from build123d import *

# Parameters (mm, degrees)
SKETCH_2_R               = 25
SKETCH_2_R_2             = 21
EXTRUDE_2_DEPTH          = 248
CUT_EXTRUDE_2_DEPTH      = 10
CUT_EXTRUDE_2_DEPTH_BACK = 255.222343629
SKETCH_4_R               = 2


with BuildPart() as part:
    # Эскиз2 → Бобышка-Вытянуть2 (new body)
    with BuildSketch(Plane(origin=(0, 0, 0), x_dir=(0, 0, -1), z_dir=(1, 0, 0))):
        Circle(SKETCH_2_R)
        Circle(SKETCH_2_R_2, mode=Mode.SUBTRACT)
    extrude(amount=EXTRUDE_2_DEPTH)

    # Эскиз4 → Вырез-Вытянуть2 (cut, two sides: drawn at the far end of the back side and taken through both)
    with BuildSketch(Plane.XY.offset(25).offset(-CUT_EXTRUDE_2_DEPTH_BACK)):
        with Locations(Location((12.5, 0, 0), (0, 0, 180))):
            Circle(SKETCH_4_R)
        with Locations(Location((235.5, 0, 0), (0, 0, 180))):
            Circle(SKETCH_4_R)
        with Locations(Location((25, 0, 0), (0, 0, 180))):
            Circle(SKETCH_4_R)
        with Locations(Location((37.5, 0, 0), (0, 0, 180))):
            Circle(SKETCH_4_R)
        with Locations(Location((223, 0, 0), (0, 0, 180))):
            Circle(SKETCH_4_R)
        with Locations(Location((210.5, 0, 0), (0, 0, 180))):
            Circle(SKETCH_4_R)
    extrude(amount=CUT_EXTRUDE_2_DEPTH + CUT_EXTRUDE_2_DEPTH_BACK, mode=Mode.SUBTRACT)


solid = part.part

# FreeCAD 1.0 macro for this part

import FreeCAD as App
import Part
import Sketcher

V = App.Vector

doc = App.newDocument("Part")
body = doc.addObject("PartDesign::Body", "Body")

sketch1 = doc.addObject("Sketcher::SketchObject", "Sketch")
body.addObject(sketch1)
sketch1.AttachmentSupport = (doc.YZ_Plane, [""])
sketch1.MapMode = "FlatFace"
sketch1.addGeometry([
    Part.Circle(V(0, 0, 0), V(0, 0, 1), 25),
    Part.Circle(V(0, 0, 0), V(0, 0, 1), 21),
], False)
sketch1.addConstraint([
    Sketcher.Constraint("Coincident", 0, 3, -1, 1),
    Sketcher.Constraint("Coincident", 1, 3, -1, 1),
    Sketcher.Constraint("Diameter", 0, 50.0),
    Sketcher.Constraint("Diameter", 1, 42.0),
])
pad1 = doc.addObject("PartDesign::Pad", "Pad")
body.addObject(pad1)
pad1.Profile = sketch1
pad1.Length = 248

sketch2 = doc.addObject("Sketcher::SketchObject", "Sketch001")
body.addObject(sketch2)
sketch2.AttachmentSupport = (doc.XY_Plane, [""])
sketch2.MapMode = "FlatFace"
sketch2.AttachmentOffset = App.Placement(V(0, 0, 25), App.Rotation())
sketch2.addGeometry([
    Part.Circle(V(12.5, 0, 0), V(0, 0, 1), 2),
    Part.Circle(V(235.5, 0, 0), V(0, 0, 1), 2),
    Part.Circle(V(25, 0, 0), V(0, 0, 1), 2),
    Part.Circle(V(37.5, 0, 0), V(0, 0, 1), 2),
    Part.Circle(V(223, 0, 0), V(0, 0, 1), 2),
    Part.Circle(V(210.5, 0, 0), V(0, 0, 1), 2),
], False)
sketch2.addConstraint([
    Sketcher.Constraint("Equal", 0, 1),
    Sketcher.Constraint("Equal", 1, 2),
    Sketcher.Constraint("Equal", 2, 3),
    Sketcher.Constraint("Equal", 3, 4),
    Sketcher.Constraint("Equal", 4, 5),
    Sketcher.Constraint("PointOnObject", 0, 3, -1),
    Sketcher.Constraint("PointOnObject", 1, 3, -1),
    Sketcher.Constraint("PointOnObject", 2, 3, -1),
    Sketcher.Constraint("PointOnObject", 3, 3, -1),
    Sketcher.Constraint("PointOnObject", 4, 3, -1),
    Sketcher.Constraint("PointOnObject", 5, 3, -1),
    Sketcher.Constraint("Diameter", 0, 4.0),
    Sketcher.Constraint("DistanceX", -1, 1, 2, 3, 25.0),
    Sketcher.Constraint("DistanceX", -1, 1, 4, 3, 223.0),
    Sketcher.Constraint("DistanceX", 0, 3, 1, 3, 223.0),
    Sketcher.Constraint("DistanceX", 0, 3, 3, 3, 25.0),
    Sketcher.Constraint("DistanceX", 5, 3, 1, 3, 25.0),
    Sketcher.Constraint("DistanceX", -1, 1, 0, 3, 12.5),
])
pocket1 = doc.addObject("PartDesign::Pocket", "Pocket")
body.addObject(pocket1)
pocket1.Profile = sketch2
pocket1.Type = "ThroughAll"
pocket1.Midplane = True

doc.recompute()
